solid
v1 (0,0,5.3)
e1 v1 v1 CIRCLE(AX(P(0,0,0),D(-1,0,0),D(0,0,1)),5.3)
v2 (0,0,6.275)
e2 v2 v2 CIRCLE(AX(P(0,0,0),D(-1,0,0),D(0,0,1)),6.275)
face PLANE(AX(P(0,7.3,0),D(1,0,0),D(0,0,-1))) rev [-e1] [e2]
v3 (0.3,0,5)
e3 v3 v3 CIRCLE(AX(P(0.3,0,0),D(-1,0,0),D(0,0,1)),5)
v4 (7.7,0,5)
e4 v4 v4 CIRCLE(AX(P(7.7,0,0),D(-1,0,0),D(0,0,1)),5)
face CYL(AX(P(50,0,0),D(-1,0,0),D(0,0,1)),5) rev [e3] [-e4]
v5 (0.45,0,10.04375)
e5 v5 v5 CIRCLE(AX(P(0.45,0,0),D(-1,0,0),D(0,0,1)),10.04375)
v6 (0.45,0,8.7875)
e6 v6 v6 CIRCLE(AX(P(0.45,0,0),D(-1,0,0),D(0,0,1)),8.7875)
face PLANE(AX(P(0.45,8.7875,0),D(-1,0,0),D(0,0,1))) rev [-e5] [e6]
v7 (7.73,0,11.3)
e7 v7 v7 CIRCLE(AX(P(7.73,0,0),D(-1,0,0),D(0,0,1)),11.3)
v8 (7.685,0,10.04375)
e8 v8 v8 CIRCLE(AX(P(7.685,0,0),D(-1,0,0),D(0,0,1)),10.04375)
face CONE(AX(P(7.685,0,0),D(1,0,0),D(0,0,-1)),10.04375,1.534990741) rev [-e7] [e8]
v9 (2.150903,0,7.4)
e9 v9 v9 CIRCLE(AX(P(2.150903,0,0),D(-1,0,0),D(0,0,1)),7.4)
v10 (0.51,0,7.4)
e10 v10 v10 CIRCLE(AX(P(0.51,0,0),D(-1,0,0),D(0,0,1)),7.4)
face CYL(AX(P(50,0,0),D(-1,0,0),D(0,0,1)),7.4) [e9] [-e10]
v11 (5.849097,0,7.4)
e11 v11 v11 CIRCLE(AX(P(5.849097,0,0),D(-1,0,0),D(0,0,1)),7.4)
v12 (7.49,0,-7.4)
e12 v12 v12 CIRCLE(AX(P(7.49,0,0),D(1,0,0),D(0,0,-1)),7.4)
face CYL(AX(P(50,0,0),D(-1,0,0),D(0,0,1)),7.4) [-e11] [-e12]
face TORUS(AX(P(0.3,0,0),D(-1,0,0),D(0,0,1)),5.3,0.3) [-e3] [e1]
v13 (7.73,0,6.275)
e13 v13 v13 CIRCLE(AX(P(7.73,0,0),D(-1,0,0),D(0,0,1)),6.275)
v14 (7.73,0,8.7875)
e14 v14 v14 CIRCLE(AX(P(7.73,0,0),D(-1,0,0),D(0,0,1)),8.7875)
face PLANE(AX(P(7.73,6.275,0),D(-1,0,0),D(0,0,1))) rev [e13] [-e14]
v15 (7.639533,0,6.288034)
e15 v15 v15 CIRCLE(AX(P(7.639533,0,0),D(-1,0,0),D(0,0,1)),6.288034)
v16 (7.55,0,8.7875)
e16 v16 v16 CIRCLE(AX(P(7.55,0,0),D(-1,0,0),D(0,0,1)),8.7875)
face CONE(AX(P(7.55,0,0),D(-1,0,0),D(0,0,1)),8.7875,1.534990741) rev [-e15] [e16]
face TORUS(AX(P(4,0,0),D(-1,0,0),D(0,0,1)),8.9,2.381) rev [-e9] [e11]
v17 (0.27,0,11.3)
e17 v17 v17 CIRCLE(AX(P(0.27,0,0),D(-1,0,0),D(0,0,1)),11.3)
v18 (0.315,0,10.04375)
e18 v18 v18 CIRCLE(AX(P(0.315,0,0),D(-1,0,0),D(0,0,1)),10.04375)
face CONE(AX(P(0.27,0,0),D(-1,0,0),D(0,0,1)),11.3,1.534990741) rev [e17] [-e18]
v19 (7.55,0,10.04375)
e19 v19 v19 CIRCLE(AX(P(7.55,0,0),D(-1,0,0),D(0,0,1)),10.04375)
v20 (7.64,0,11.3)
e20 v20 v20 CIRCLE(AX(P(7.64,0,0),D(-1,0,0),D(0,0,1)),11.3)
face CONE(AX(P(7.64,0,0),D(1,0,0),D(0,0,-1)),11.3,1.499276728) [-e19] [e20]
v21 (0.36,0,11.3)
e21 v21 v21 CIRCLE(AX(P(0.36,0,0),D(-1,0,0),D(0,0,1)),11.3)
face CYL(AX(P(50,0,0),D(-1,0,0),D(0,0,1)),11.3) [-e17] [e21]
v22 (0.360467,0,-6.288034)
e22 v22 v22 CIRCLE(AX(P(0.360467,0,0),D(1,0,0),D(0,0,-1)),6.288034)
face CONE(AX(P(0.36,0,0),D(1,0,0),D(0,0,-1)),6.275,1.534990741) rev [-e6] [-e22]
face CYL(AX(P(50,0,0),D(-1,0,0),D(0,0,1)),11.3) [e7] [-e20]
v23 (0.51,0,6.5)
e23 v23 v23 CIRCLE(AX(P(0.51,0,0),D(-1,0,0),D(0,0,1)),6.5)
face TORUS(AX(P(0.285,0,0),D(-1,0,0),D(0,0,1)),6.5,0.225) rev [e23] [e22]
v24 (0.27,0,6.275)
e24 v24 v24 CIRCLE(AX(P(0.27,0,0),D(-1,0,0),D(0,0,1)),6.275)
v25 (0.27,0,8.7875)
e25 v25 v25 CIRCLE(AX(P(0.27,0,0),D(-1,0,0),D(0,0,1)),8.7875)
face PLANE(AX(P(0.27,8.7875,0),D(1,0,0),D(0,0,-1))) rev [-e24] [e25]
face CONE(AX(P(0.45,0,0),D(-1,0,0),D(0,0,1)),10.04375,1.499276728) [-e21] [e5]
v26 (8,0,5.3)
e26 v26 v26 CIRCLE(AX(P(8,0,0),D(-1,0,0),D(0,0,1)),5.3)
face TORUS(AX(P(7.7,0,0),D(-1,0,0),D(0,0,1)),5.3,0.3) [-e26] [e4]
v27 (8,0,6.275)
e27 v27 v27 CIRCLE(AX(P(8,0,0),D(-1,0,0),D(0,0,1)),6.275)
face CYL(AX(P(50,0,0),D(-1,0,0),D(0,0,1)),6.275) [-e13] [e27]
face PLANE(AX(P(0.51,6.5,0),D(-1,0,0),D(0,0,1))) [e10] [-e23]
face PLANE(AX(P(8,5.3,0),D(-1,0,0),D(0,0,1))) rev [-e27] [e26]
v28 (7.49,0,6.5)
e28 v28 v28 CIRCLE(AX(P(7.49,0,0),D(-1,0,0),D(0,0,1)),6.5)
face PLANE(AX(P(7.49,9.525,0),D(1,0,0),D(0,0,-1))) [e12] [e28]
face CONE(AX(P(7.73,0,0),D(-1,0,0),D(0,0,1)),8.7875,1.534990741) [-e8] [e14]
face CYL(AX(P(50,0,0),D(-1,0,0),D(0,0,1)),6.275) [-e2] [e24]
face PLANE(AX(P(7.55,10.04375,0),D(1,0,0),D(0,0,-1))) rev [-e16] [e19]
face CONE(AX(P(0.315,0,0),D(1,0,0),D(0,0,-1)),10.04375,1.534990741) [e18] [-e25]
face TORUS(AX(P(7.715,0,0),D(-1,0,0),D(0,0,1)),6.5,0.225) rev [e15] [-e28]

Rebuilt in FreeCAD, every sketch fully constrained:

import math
import FreeCAD as App
import Part
import Sketcher

V = App.Vector


def add_polygon(sketch, points):
    """Adds a closed chain of lines whose ends are joined by coincident constraints."""
    first, n = sketch.GeometryCount, len(points)
    for a, b in zip(points, points[1:] + points[:1]):
        sketch.addGeometry(Part.LineSegment(App.Vector(*a, 0), App.Vector(*b, 0)), False)
    for i in range(n):
        sketch.addConstraint(Sketcher.Constraint("Coincident", first + i, 2, first + (i + 1) % n, 1))

doc = App.newDocument("Part")
body = doc.addObject("PartDesign::Body", "Body")

# Sketch on XY plane
sketch1 = body.newObject("Sketcher::SketchObject", "Sketch")
sketch1.AttachmentSupport = (doc.getObject("XY_Plane"), [""])
sketch1.MapMode = "FlatFace"
sketch1.addGeometry([
    Part.LineSegment(V(0, 7.3, 0), V(0, 5.3, 0)),  # 0
    Part.ArcOfCircle(Part.Circle(V(0.3, 5.3, 0), V(0, 0, 1), 0.3), math.radians(-180), math.radians(-90)),  # 1
    Part.LineSegment(V(0.3, 5, 0), V(7.7, 5, 0)),  # 2
    Part.ArcOfCircle(Part.Circle(V(7.7, 5.3, 0), V(0, 0, 1), 0.3), math.radians(-90), math.radians(0)),  # 3
    Part.LineSegment(V(8, 5.3, 0), V(8, 7.3, 0)),  # 4
    Part.ArcOfCircle(Part.Circle(V(7.9, 7.3, 0), V(0, 0, 1), 0.1), math.radians(0), math.radians(90)),  # 5
    Part.LineSegment(V(7.9, 7.4, 0), V(5.85, 7.4, 0)),  # 6
    Part.ArcOfCircle(Part.Circle(V(4, 8.9, 0), V(0, 0, 1), 2.38), math.radians(-141), math.radians(-39)),  # 7
    Part.LineSegment(V(2.15, 7.4, 0), V(0.1, 7.4, 0)),  # 8
    Part.ArcOfCircle(Part.Circle(V(0.1, 7.3, 0), V(0, 0, 1), 0.1), math.radians(90), math.radians(180)),  # 9
], False)
sketch1.addConstraint([
    Sketcher.Constraint("Tangent", 0, 2, 1, 1),
    Sketcher.Constraint("Tangent", 1, 2, 2, 1),
    Sketcher.Constraint("Tangent", 2, 2, 3, 1),
    Sketcher.Constraint("Tangent", 3, 2, 4, 1),
    Sketcher.Constraint("Tangent", 4, 2, 5, 1),
    Sketcher.Constraint("Tangent", 5, 2, 6, 1),
    Sketcher.Constraint("Coincident", 6, 2, 7, 2),
    Sketcher.Constraint("Coincident", 7, 1, 8, 1),
    Sketcher.Constraint("Tangent", 8, 2, 9, 1),
    Sketcher.Constraint("Tangent", 9, 2, 0, 1),
    Sketcher.Constraint("Vertical", 0),
    Sketcher.Constraint("Horizontal", 2),
    Sketcher.Constraint("Vertical", 4),
    Sketcher.Constraint("Horizontal", 6),
    Sketcher.Constraint("Horizontal", 8),
    Sketcher.Constraint("Equal", 1, 3),
    Sketcher.Constraint("Equal", 5, 9),
    Sketcher.Constraint("PointOnObject", 0, 2, -2),
    Sketcher.Constraint("Horizontal", 5, 3, 9, 3),
    Sketcher.Constraint("Equal", 6, 8),
    Sketcher.Constraint("Radius", 1, 0.3),
    Sketcher.Constraint("Radius", 5, 0.1),
    Sketcher.Constraint("DistanceY", 0, 2, 0, 1, 2.0),
    Sketcher.Constraint("DistanceX", 2, 1, 2, 2, 7.4),
    Sketcher.Constraint("DistanceY", -1, 1, 1, 2, 5.0),
    Sketcher.Constraint("Radius", 7, 2.381),
    Sketcher.Constraint("DistanceY", -1, 1, 7, 3, 8.9),
])
revolution = body.newObject("PartDesign::Revolution", "Revolution")
revolution.Profile = sketch1
revolution.ReferenceAxis = (sketch1, ["H_Axis"])
revolution.Angle = 360

# Sketch on XY plane
sketch2 = body.newObject("Sketcher::SketchObject", "Sketch001")
sketch2.AttachmentSupport = (doc.getObject("XY_Plane"), [""])
sketch2.MapMode = "FlatFace"
sketch2.addGeometry([
    Part.LineSegment(V(0, 9.97, 0), V(0, 6.28, 0)),  # 0
    Part.LineSegment(V(0, 6.28, 0), V(0.28, 6.28, 0)),  # 1
    Part.ArcOfCircle(Part.Circle(V(0.29, 6.5, 0), V(0, 0, 1), 0.22), math.radians(-90), math.radians(0)),  # 2
    Part.LineSegment(V(0.51, 6.5, 0), V(0.51, 9.53, 0)),  # 3
    Part.LineSegment(V(0.51, 9.53, 0), V(7.49, 9.53, 0)),  # 4
    Part.LineSegment(V(7.49, 9.53, 0), V(7.49, 6.5, 0)),  # 5
    Part.ArcOfCircle(Part.Circle(V(7.71, 6.5, 0), V(0, 0, 1), 0.22), math.radians(180), math.radians(270)),  # 6
    Part.LineSegment(V(7.71, 6.28, 0), V(8, 6.28, 0)),  # 7
    Part.LineSegment(V(8, 6.28, 0), V(8, 9.97, 0)),  # 8
    Part.LineSegment(V(8, 9.97, 0), V(0, 9.97, 0)),  # 9
], False)
sketch2.addConstraint([
    Sketcher.Constraint("Coincident", 0, 2, 1, 1),
    Sketcher.Constraint("Tangent", 1, 2, 2, 1),
    Sketcher.Constraint("Tangent", 2, 2, 3, 1),
    Sketcher.Constraint("Coincident", 3, 2, 4, 1),
    Sketcher.Constraint("Coincident", 4, 2, 5, 1),
    Sketcher.Constraint("Tangent", 5, 2, 6, 1),
    Sketcher.Constraint("Tangent", 6, 2, 7, 1),
    Sketcher.Constraint("Coincident", 7, 2, 8, 1),
    Sketcher.Constraint("Coincident", 8, 2, 9, 1),
    Sketcher.Constraint("Coincident", 9, 2, 0, 1),
    Sketcher.Constraint("Vertical", 0),
    Sketcher.Constraint("Horizontal", 1),
    Sketcher.Constraint("Vertical", 3),
    Sketcher.Constraint("Horizontal", 4),
    Sketcher.Constraint("Vertical", 5),
    Sketcher.Constraint("Horizontal", 7),
    Sketcher.Constraint("Vertical", 8),
    Sketcher.Constraint("Horizontal", 9),
    Sketcher.Constraint("Equal", 2, 6),
    Sketcher.Constraint("PointOnObject", 0, 2, -2),
    Sketcher.Constraint("Horizontal", 2, 3, 6, 3),
    Sketcher.Constraint("Equal", 1, 7),
    Sketcher.Constraint("DistanceX", 9, 2, 9, 1, 8.0),
    Sketcher.Constraint("DistanceY", 0, 2, 0, 1, 3.7),
    Sketcher.Constraint("Radius", 2, 0.225),
    Sketcher.Constraint("DistanceX", 4, 1, 4, 2, 6.98),
    Sketcher.Constraint("DistanceY", -1, 1, 2, 3, 6.5),
    Sketcher.Constraint("DistanceY", 3, 1, 3, 2, 3.025),
])
groove = body.newObject("PartDesign::Groove", "Groove")
groove.Profile = sketch2
groove.ReferenceAxis = (sketch2, ["H_Axis"])
groove.Angle = 360

# Sketch on XY plane
sketch3 = body.newObject("Sketcher::SketchObject", "Sketch002")
sketch3.AttachmentSupport = (doc.getObject("XY_Plane"), [""])
sketch3.MapMode = "FlatFace"
add_polygon(sketch3, [(0.27, 11.3), (0.32, 10.04), (0.27, 8.79), (0.27, 6.28), (0.36, 6.28), (0.45, 8.79), (0.45, 10.04), (0.36, 11.3)])  # lines 0-7
sketch3.addConstraint([
    Sketcher.Constraint("Vertical", 2),
    Sketcher.Constraint("Horizontal", 3),
    Sketcher.Constraint("Vertical", 5),
    Sketcher.Constraint("Horizontal", 7),
    Sketcher.Constraint("Parallel", 1, 4),
    Sketcher.Constraint("Horizontal", 1, 2, 4, 2),
    Sketcher.Constraint("Horizontal", 0, 2, 5, 2),
    Sketcher.Constraint("Vertical", 3, 2, 6, 2),
    Sketcher.Constraint("Vertical", 2, 2, 7, 2),
    Sketcher.Constraint("Equal", 0, 1),
    Sketcher.Constraint("DistanceX", 3, 1, 3, 2, 0.09),
    Sketcher.Constraint("DistanceY", -1, 1, 6, 2, 11.3),
    Sketcher.Constraint("DistanceX", -1, 1, 1, 2, 0.27),
    Sketcher.Constraint("DistanceX", -1, 1, 4, 2, 0.45),
    Sketcher.Constraint("DistanceY", 2, 2, 2, 1, 2.5125),
    Sketcher.Constraint("DistanceX", -1, 1, 0, 2, 0.315),
])
revolution2 = body.newObject("PartDesign::Revolution", "Revolution001")
revolution2.Profile = sketch3
revolution2.ReferenceAxis = (sketch3, ["H_Axis"])
revolution2.Angle = 360

# Sketch on XY plane
sketch4 = body.newObject("Sketcher::SketchObject", "Sketch003")
sketch4.AttachmentSupport = (doc.getObject("XY_Plane"), [""])
sketch4.MapMode = "FlatFace"
add_polygon(sketch4, [(7.55, 10.04), (7.55, 8.79), (7.64, 6.28), (7.73, 6.28), (7.73, 8.79), (7.68, 10.04), (7.73, 11.3), (7.64, 11.3)])  # lines 0-7
sketch4.addConstraint([
    Sketcher.Constraint("Vertical", 0),
    Sketcher.Constraint("Horizontal", 2),
    Sketcher.Constraint("Vertical", 3),
    Sketcher.Constraint("Horizontal", 6),
    Sketcher.Constraint("Parallel", 1, 4),
    Sketcher.Constraint("Horizontal", 0, 2, 3, 2),
    Sketcher.Constraint("Horizontal", 4, 2, 7, 2),
    Sketcher.Constraint("Vertical", 3, 2, 5, 2),
    Sketcher.Constraint("Vertical", 1, 2, 6, 2),
    Sketcher.Constraint("Equal", 4, 5),
    Sketcher.Constraint("DistanceX", 2, 1, 2, 2, 0.09),
    Sketcher.Constraint("DistanceY", -1, 1, 5, 2, 11.3),
    Sketcher.Constraint("DistanceX", -1, 1, 0, 2, 7.55),
    Sketcher.Constraint("DistanceX", -1, 1, 1, 2, 7.64),
    Sketcher.Constraint("DistanceY", 3, 1, 3, 2, 2.5125),
    Sketcher.Constraint("DistanceY", -1, 1, 1, 2, 6.275),
])
revolution3 = body.newObject("PartDesign::Revolution", "Revolution002")
revolution3.Profile = sketch4
revolution3.ReferenceAxis = (sketch4, ["H_Axis"])
revolution3.Angle = 360

doc.recompute()
